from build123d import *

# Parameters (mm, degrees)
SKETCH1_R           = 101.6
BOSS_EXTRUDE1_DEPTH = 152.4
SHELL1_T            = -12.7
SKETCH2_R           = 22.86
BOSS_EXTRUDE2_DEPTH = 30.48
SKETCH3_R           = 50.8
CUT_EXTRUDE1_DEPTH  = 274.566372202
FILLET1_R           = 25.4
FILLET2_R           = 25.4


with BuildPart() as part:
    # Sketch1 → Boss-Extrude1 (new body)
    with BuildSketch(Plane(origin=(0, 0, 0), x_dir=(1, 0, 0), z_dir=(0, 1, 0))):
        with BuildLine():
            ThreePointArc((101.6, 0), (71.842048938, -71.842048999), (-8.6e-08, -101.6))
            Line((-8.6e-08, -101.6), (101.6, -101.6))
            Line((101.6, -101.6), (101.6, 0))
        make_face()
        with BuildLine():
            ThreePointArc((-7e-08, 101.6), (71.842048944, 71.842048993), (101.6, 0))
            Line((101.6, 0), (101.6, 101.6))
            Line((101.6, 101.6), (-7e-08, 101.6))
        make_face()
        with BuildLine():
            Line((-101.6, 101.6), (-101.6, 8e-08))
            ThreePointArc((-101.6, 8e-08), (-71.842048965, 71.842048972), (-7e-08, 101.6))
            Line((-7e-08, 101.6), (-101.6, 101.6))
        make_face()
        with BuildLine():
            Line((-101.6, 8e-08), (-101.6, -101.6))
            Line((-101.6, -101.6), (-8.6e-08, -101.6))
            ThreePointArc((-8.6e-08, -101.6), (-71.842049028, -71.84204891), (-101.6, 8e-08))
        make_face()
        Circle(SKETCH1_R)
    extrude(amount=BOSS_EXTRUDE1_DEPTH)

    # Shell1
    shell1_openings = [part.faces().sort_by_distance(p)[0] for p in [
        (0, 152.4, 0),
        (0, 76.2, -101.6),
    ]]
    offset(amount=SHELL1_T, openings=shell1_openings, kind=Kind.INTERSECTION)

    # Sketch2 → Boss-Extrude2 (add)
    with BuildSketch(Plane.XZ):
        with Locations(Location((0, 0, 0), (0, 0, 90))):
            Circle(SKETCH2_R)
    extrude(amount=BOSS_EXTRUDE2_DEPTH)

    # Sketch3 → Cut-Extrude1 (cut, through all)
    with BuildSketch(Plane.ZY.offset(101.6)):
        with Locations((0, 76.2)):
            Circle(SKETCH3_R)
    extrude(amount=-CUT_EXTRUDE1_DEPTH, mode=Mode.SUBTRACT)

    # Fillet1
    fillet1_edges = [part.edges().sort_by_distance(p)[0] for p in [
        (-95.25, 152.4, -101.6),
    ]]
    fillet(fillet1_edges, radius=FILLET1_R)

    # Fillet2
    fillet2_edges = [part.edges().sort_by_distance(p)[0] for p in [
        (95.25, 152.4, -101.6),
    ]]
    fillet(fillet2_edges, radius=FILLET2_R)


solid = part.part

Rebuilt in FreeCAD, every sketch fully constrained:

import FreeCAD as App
import Part
import Sketcher
from FreeCAD import Vector
Q = App.Units.Quantity


def edges_at(feature, points):
    """Names of the edges that pass closest to the given points."""
    edges = feature.Shape.Edges
    near = lambda p: min(range(len(edges)), key=lambda i: edges[i].distToShape(Part.Vertex(*p))[0])
    return sorted({f"Edge{near(p) + 1}" for p in points})


def faces_at(feature, points):
    """Names of the faces that lie closest to the given points."""
    faces = feature.Shape.Faces
    near = lambda p: min(range(len(faces)), key=lambda i: faces[i].distToShape(Part.Vertex(*p))[0])
    return sorted({f"Face{near(p) + 1}" for p in points})

doc = App.newDocument("Part")
body = doc.addObject("PartDesign::Body", "Body")

sketch1 = body.newObject("Sketcher::SketchObject", "Sketch")
sketch1.AttachmentSupport = (doc.getObject("XZ_Plane"), [""])
sketch1.MapMode = "FlatFace"
sketch1.addGeometry([
    Part.LineSegment(Vector(102, 102, 0), Vector(102, -102, 0)),
    Part.LineSegment(Vector(102, -102, 0), Vector(-102, -102, 0)),
    Part.LineSegment(Vector(-102, -102, 0), Vector(-102, 102, 0)),
    Part.LineSegment(Vector(-102, 102, 0), Vector(102, 102, 0)),
], False)
sketch1.addConstraint([
    Sketcher.Constraint("Coincident", 0, 2, 1, 1),
    Sketcher.Constraint("Coincident", 1, 2, 2, 1),
    Sketcher.Constraint("Coincident", 2, 2, 3, 1),
    Sketcher.Constraint("Coincident", 3, 2, 0, 1),
    Sketcher.Constraint("Vertical", 0),
    Sketcher.Constraint("Horizontal", 1),
    Sketcher.Constraint("Vertical", 2),
    Sketcher.Constraint("Horizontal", 3),
    Sketcher.Constraint("Symmetric", 0, 2, 2, 2, -1, 1),
    Sketcher.Constraint("Equal", 3, 0),
    Sketcher.Constraint("DistanceX", 1, 2, 1, 1, Q("8 in")),
])
pad1 = body.newObject("PartDesign::Pad", "Pad")
pad1.Profile = sketch1
pad1.Length = Q("6 in")
pad1.Reversed = True
doc.recompute()

thickness = body.newObject("PartDesign::Thickness", "Thickness")
thickness.Base = (pad1, faces_at(pad1, [(0, 152.4, 0), (0, 76.2, -101.6)]))
thickness.Value = Q("0.5 in")
thickness.Reversed = True
thickness.Join = "Intersection"

sketch2 = body.newObject("Sketcher::SketchObject", "Sketch001")
sketch2.AttachmentSupport = (doc.getObject("XZ_Plane"), [""])
sketch2.MapMode = "FlatFace"
sketch2.addGeometry(Part.Circle(Vector(0, 0, 0), Vector(0, 0, 1), 23), False)
sketch2.addConstraint([
    Sketcher.Constraint("Coincident", 0, 3, -1, 1),
    Sketcher.Constraint("Diameter", 0, Q("1.8 in")),
])
pad2 = body.newObject("PartDesign::Pad", "Pad001")
pad2.Profile = sketch2
pad2.Length = Q("1.2 in")

sketch3 = body.newObject("Sketcher::SketchObject", "Sketch002")
sketch3.AttachmentSupport = (doc.getObject("YZ_Plane"), [""])
sketch3.MapMode = "FlatFace"
sketch3.AttachmentOffset = App.Placement(Vector(0, 0, -4 * 25.4), App.Rotation())
sketch3.addGeometry(Part.Circle(Vector(76, 0, 0), Vector(0, 0, 1), 51), False)
sketch3.addConstraint([
    Sketcher.Constraint("PointOnObject", 0, 3, -1),
    Sketcher.Constraint("Diameter", 0, Q("4 in")),
    Sketcher.Constraint("DistanceX", -1, 1, 0, 3, Q("3 in")),
])
pocket1 = body.newObject("PartDesign::Pocket", "Pocket")
pocket1.Profile = sketch3
pocket1.Type = "ThroughAll"
pocket1.Reversed = True
doc.recompute()

fillet = body.newObject("PartDesign::Fillet", "Fillet")
fillet.Base = (pocket1, edges_at(pocket1, [(-95.25, 152.4, -101.6)]))
fillet.Radius = Q("1 in")
doc.recompute()

fillet2 = body.newObject("PartDesign::Fillet", "Fillet001")
fillet2.Base = (fillet, edges_at(fillet, [(95.25, 152.4, -101.6)]))
fillet2.Radius = Q("1 in")

doc.recompute()
